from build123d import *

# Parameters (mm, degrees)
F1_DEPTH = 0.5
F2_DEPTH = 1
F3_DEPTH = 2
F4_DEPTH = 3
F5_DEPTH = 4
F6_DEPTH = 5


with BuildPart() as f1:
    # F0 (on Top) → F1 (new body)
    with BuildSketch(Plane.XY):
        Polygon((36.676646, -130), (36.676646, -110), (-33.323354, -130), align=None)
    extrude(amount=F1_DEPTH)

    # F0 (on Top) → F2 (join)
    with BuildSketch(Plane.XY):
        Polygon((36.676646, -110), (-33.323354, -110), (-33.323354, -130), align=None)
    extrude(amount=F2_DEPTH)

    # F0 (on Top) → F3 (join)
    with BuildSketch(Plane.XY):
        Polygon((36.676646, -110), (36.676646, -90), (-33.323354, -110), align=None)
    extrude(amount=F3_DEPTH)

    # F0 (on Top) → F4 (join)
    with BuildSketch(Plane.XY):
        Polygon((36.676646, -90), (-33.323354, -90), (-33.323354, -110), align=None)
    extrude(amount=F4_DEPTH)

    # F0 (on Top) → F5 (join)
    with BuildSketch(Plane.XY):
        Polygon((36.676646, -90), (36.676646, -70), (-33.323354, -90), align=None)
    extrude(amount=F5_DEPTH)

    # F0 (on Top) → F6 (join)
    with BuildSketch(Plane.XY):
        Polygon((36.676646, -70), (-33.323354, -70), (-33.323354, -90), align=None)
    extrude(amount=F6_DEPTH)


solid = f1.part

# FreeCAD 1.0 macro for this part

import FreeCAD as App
import Part
import Sketcher
from FreeCAD import Vector

doc = App.newDocument("Part")
params = doc.addObject("Spreadsheet::Sheet", "Params")
for row, (alias, value) in enumerate([
    ("sketch1_width", "70 mm"),
    ("sketch1_height", "20 mm"),
    ("pad1_length", "0.5 mm"),
    ("sketch2_width", "70 mm"),
    ("sketch2_height", "20 mm"),
    ("pad2_length", "1 mm"),
    ("sketch3_width", "70 mm"),
    ("sketch3_height", "20 mm"),
    ("pad3_length", "2 mm"),
    ("sketch4_width", "70 mm"),
    ("sketch4_height", "20 mm"),
    ("pad4_length", "3 mm"),
    ("sketch5_width", "70 mm"),
    ("sketch5_height", "20 mm"),
    ("pad5_length", "4 mm"),
    ("sketch6_width", "70 mm"),
    ("sketch6_height", "20 mm"),
    ("pad6_length", "5 mm"),
], start=1):
    params.set(f"A{row}", alias)
    params.set(f"B{row}", "=" + value)
    params.setAlias(f"B{row}", alias)

body = doc.addObject("PartDesign::Body", "Body")

sketch1 = doc.addObject("Sketcher::SketchObject", "Sketch")
body.addObject(sketch1)
sketch1.AttachmentSupport = (doc.XY_Plane, [""])
sketch1.MapMode = "FlatFace"
sketch1.addGeometry(Part.LineSegment(Vector(36.676646, -130, 0), Vector(36.676646, -110, 0)), False)
sketch1.addGeometry(Part.LineSegment(Vector(36.676646, -110, 0), Vector(-33.323354, -130, 0)), False)
sketch1.addGeometry(Part.LineSegment(Vector(-33.323354, -130, 0), Vector(36.676646, -130, 0)), False)
sketch1.addConstraint(Sketcher.Constraint("Coincident", 0, 2, 1, 1))
sketch1.addConstraint(Sketcher.Constraint("Coincident", 1, 2, 2, 1))
sketch1.addConstraint(Sketcher.Constraint("Coincident", 2, 2, 0, 1))
sketch1.addConstraint(Sketcher.Constraint("Vertical", 0))
sketch1.addConstraint(Sketcher.Constraint("Horizontal", 2))
sketch1.addConstraint(Sketcher.Constraint("DistanceX", 2, 1, 2, 2, 70.0))
sketch1.addConstraint(Sketcher.Constraint("DistanceY", 0, 1, 0, 2, 20.0))
sketch1.addConstraint(Sketcher.Constraint("DistanceY", 0, 2, -1, 1, 110.0))
sketch1.addConstraint(Sketcher.Constraint("DistanceX", -1, 1, 0, 2, 36.676646))
sketch1.setExpression("Constraints[5]", "Params.sketch1_width")
sketch1.setExpression("Constraints[6]", "Params.sketch1_height")
pad1 = doc.addObject("PartDesign::Pad", "Pad")
body.addObject(pad1)
pad1.Profile = sketch1
pad1.setExpression("Length", "Params.pad1_length")

sketch2 = doc.addObject("Sketcher::SketchObject", "Sketch001")
body.addObject(sketch2)
sketch2.AttachmentSupport = (doc.XY_Plane, [""])
sketch2.MapMode = "FlatFace"
sketch2.addGeometry(Part.LineSegment(Vector(36.676646, -110, 0), Vector(-33.323354, -110, 0)), False)
sketch2.addGeometry(Part.LineSegment(Vector(-33.323354, -110, 0), Vector(-33.323354, -130, 0)), False)
sketch2.addGeometry(Part.LineSegment(Vector(-33.323354, -130, 0), Vector(36.676646, -110, 0)), False)
sketch2.addConstraint(Sketcher.Constraint("Coincident", 0, 2, 1, 1))
sketch2.addConstraint(Sketcher.Constraint("Coincident", 1, 2, 2, 1))
sketch2.addConstraint(Sketcher.Constraint("Coincident", 2, 2, 0, 1))
sketch2.addConstraint(Sketcher.Constraint("Horizontal", 0))
sketch2.addConstraint(Sketcher.Constraint("Vertical", 1))
sketch2.addConstraint(Sketcher.Constraint("DistanceX", 0, 2, 0, 1, 70.0))
sketch2.addConstraint(Sketcher.Constraint("DistanceY", 1, 2, 1, 1, 20.0))
sketch2.addConstraint(Sketcher.Constraint("DistanceY", 0, 2, -1, 1, 110.0))
sketch2.addConstraint(Sketcher.Constraint("DistanceX", 0, 2, -1, 1, 33.323354))
sketch2.setExpression("Constraints[5]", "Params.sketch2_width")
sketch2.setExpression("Constraints[6]", "Params.sketch2_height")
pad2 = doc.addObject("PartDesign::Pad", "Pad001")
body.addObject(pad2)
pad2.Profile = sketch2
pad2.setExpression("Length", "Params.pad2_length")

sketch3 = doc.addObject("Sketcher::SketchObject", "Sketch002")
body.addObject(sketch3)
sketch3.AttachmentSupport = (doc.XY_Plane, [""])
sketch3.MapMode = "FlatFace"
sketch3.addGeometry(Part.LineSegment(Vector(36.676646, -110, 0), Vector(36.676646, -90, 0)), False)
sketch3.addGeometry(Part.LineSegment(Vector(36.676646, -90, 0), Vector(-33.323354, -110, 0)), False)
sketch3.addGeometry(Part.LineSegment(Vector(-33.323354, -110, 0), Vector(36.676646, -110, 0)), False)
sketch3.addConstraint(Sketcher.Constraint("Coincident", 0, 2, 1, 1))
sketch3.addConstraint(Sketcher.Constraint("Coincident", 1, 2, 2, 1))
sketch3.addConstraint(Sketcher.Constraint("Coincident", 2, 2, 0, 1))
sketch3.addConstraint(Sketcher.Constraint("Vertical", 0))
sketch3.addConstraint(Sketcher.Constraint("Horizontal", 2))
sketch3.addConstraint(Sketcher.Constraint("DistanceX", 2, 1, 2, 2, 70.0))
sketch3.addConstraint(Sketcher.Constraint("DistanceY", 0, 1, 0, 2, 20.0))
sketch3.addConstraint(Sketcher.Constraint("DistanceY", 0, 2, -1, 1, 90.0))
sketch3.addConstraint(Sketcher.Constraint("DistanceX", -1, 1, 0, 2, 36.676646))
sketch3.setExpression("Constraints[5]", "Params.sketch3_width")
sketch3.setExpression("Constraints[6]", "Params.sketch3_height")
pad3 = doc.addObject("PartDesign::Pad", "Pad002")
body.addObject(pad3)
pad3.Profile = sketch3
pad3.setExpression("Length", "Params.pad3_length")

sketch4 = doc.addObject("Sketcher::SketchObject", "Sketch003")
body.addObject(sketch4)
sketch4.AttachmentSupport = (doc.XY_Plane, [""])
sketch4.MapMode = "FlatFace"
sketch4.addGeometry(Part.LineSegment(Vector(36.676646, -90, 0), Vector(-33.323354, -90, 0)), False)
sketch4.addGeometry(Part.LineSegment(Vector(-33.323354, -90, 0), Vector(-33.323354, -110, 0)), False)
sketch4.addGeometry(Part.LineSegment(Vector(-33.323354, -110, 0), Vector(36.676646, -90, 0)), False)
sketch4.addConstraint(Sketcher.Constraint("Coincident", 0, 2, 1, 1))
sketch4.addConstraint(Sketcher.Constraint("Coincident", 1, 2, 2, 1))
sketch4.addConstraint(Sketcher.Constraint("Coincident", 2, 2, 0, 1))
sketch4.addConstraint(Sketcher.Constraint("Horizontal", 0))
sketch4.addConstraint(Sketcher.Constraint("Vertical", 1))
sketch4.addConstraint(Sketcher.Constraint("DistanceX", 0, 2, 0, 1, 70.0))
sketch4.addConstraint(Sketcher.Constraint("DistanceY", 1, 2, 1, 1, 20.0))
sketch4.addConstraint(Sketcher.Constraint("DistanceY", 0, 2, -1, 1, 90.0))
sketch4.addConstraint(Sketcher.Constraint("DistanceX", 0, 2, -1, 1, 33.323354))
sketch4.setExpression("Constraints[5]", "Params.sketch4_width")
sketch4.setExpression("Constraints[6]", "Params.sketch4_height")
pad4 = doc.addObject("PartDesign::Pad", "Pad003")
body.addObject(pad4)
pad4.Profile = sketch4
pad4.setExpression("Length", "Params.pad4_length")

sketch5 = doc.addObject("Sketcher::SketchObject", "Sketch004")
body.addObject(sketch5)
sketch5.AttachmentSupport = (doc.XY_Plane, [""])
sketch5.MapMode = "FlatFace"
sketch5.addGeometry(Part.LineSegment(Vector(36.676646, -90, 0), Vector(36.676646, -70, 0)), False)
sketch5.addGeometry(Part.LineSegment(Vector(36.676646, -70, 0), Vector(-33.323354, -90, 0)), False)
sketch5.addGeometry(Part.LineSegment(Vector(-33.323354, -90, 0), Vector(36.676646, -90, 0)), False)
sketch5.addConstraint(Sketcher.Constraint("Coincident", 0, 2, 1, 1))
sketch5.addConstraint(Sketcher.Constraint("Coincident", 1, 2, 2, 1))
sketch5.addConstraint(Sketcher.Constraint("Coincident", 2, 2, 0, 1))
sketch5.addConstraint(Sketcher.Constraint("Vertical", 0))
sketch5.addConstraint(Sketcher.Constraint("Horizontal", 2))
sketch5.addConstraint(Sketcher.Constraint("DistanceX", 2, 1, 2, 2, 70.0))
sketch5.addConstraint(Sketcher.Constraint("DistanceY", 0, 1, 0, 2, 20.0))
sketch5.addConstraint(Sketcher.Constraint("DistanceY", 0, 2, -1, 1, 70.0))
sketch5.addConstraint(Sketcher.Constraint("DistanceX", -1, 1, 0, 2, 36.676646))
sketch5.setExpression("Constraints[5]", "Params.sketch5_width")
sketch5.setExpression("Constraints[6]", "Params.sketch5_height")
pad5 = doc.addObject("PartDesign::Pad", "Pad004")
body.addObject(pad5)
pad5.Profile = sketch5
pad5.setExpression("Length", "Params.pad5_length")

sketch6 = doc.addObject("Sketcher::SketchObject", "Sketch005")
body.addObject(sketch6)
sketch6.AttachmentSupport = (doc.XY_Plane, [""])
sketch6.MapMode = "FlatFace"
sketch6.addGeometry(Part.LineSegment(Vector(36.676646, -70, 0), Vector(-33.323354, -70, 0)), False)
sketch6.addGeometry(Part.LineSegment(Vector(-33.323354, -70, 0), Vector(-33.323354, -90, 0)), False)
sketch6.addGeometry(Part.LineSegment(Vector(-33.323354, -90, 0), Vector(36.676646, -70, 0)), False)
sketch6.addConstraint(Sketcher.Constraint("Coincident", 0, 2, 1, 1))
sketch6.addConstraint(Sketcher.Constraint("Coincident", 1, 2, 2, 1))
sketch6.addConstraint(Sketcher.Constraint("Coincident", 2, 2, 0, 1))
sketch6.addConstraint(Sketcher.Constraint("Horizontal", 0))
sketch6.addConstraint(Sketcher.Constraint("Vertical", 1))
sketch6.addConstraint(Sketcher.Constraint("DistanceX", 0, 2, 0, 1, 70.0))
sketch6.addConstraint(Sketcher.Constraint("DistanceY", 1, 2, 1, 1, 20.0))
sketch6.addConstraint(Sketcher.Constraint("DistanceY", 0, 2, -1, 1, 70.0))
sketch6.addConstraint(Sketcher.Constraint("DistanceX", 0, 2, -1, 1, 33.323354))
sketch6.setExpression("Constraints[5]", "Params.sketch6_width")
sketch6.setExpression("Constraints[6]", "Params.sketch6_height")
pad6 = doc.addObject("PartDesign::Pad", "Pad005")
body.addObject(pad6)
pad6.Profile = sketch6
pad6.setExpression("Length", "Params.pad6_length")

doc.recompute()
